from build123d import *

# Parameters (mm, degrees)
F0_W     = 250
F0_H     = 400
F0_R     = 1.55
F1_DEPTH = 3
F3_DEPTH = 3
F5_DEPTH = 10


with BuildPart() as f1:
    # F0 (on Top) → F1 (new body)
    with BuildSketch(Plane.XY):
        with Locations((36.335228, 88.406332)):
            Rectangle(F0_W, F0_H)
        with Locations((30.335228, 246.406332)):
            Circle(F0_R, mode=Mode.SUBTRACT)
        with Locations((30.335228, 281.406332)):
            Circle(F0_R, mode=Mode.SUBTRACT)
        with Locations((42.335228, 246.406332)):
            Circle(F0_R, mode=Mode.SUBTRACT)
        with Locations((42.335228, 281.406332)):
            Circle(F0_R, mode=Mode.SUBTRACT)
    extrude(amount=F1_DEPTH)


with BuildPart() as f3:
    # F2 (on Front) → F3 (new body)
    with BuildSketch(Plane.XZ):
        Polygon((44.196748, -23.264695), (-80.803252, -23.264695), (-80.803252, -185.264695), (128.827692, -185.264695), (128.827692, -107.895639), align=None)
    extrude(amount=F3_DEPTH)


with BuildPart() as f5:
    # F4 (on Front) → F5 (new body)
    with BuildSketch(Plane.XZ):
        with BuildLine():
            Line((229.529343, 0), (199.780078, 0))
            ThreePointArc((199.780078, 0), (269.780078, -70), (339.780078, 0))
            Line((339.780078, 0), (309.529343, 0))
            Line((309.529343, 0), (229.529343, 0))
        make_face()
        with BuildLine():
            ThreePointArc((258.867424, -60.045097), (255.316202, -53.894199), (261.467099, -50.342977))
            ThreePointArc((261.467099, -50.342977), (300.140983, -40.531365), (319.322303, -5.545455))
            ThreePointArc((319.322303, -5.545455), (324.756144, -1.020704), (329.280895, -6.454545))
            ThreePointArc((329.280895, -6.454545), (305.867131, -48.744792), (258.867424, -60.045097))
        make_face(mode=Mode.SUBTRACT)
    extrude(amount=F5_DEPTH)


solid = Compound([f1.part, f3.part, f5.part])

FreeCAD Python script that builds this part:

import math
import FreeCAD as App
import Part
import Sketcher

V = App.Vector
Q = App.Units.Quantity

doc = App.newDocument("Part")
params = doc.addObject("Spreadsheet::Sheet", "Params")
for row, (alias, value) in enumerate([
    ("sketch1_diameter", "3.1 mm"),
    ("sketch1_width", "250 mm"),
    ("sketch1_height", "400 mm"),
    ("pad1_length", "3 mm"),
    ("sketch2_width", "125 mm"),
    ("sketch2_height", "162 mm"),
    ("pad2_length", "3 mm"),
    ("sketch3_radius", "70 mm"),
    ("sketch3_radius2", "60 mm"),
    ("sketch3_radius3", "50 mm"),
    ("sketch3_radius4", "5 mm"),
    ("pad3_length", "10 mm"),
], start=1):
    params.set(f"A{row}", alias)
    params.set(f"B{row}", "=" + value)
    params.setAlias(f"B{row}", alias)

body = doc.addObject("PartDesign::Body", "Body")

sketch1 = doc.addObject("Sketcher::SketchObject", "Sketch")
body.addObject(sketch1)
sketch1.AttachmentSupport = (doc.XY_Plane, [""])
sketch1.MapMode = "FlatFace"
sketch1.addGeometry([
    Part.LineSegment(V(-88.664772, 288.406332, 0), V(-88.664772, -111.593668, 0)),
    Part.LineSegment(V(-88.664772, -111.593668, 0), V(161.335228, -111.593668, 0)),
    Part.LineSegment(V(161.335228, -111.593668, 0), V(161.335228, 288.406332, 0)),
    Part.LineSegment(V(161.335228, 288.406332, 0), V(-88.664772, 288.406332, 0)),
    Part.Circle(V(30.335228, 246.406332, 0), V(0, 0, 1), 1.55),
    Part.Circle(V(42.335228, 246.406332, 0), V(0, 0, 1), 1.55),
    Part.Circle(V(30.335228, 281.406332, 0), V(0, 0, 1), 1.55),
    Part.Circle(V(42.335228, 281.406332, 0), V(0, 0, 1), 1.55),
], False)
sketch1.addConstraint([
    Sketcher.Constraint("Coincident", 0, 2, 1, 1),
    Sketcher.Constraint("Coincident", 1, 2, 2, 1),
    Sketcher.Constraint("Coincident", 2, 2, 3, 1),
    Sketcher.Constraint("Coincident", 3, 2, 0, 1),
    Sketcher.Constraint("Vertical", 0),
    Sketcher.Constraint("Horizontal", 1),
    Sketcher.Constraint("Vertical", 2),
    Sketcher.Constraint("Horizontal", 3),
    Sketcher.Constraint("Equal", 4, 5),
    Sketcher.Constraint("Equal", 5, 6),
    Sketcher.Constraint("Equal", 6, 7),
    Sketcher.Constraint("Horizontal", 4, 3, 5, 3),
    Sketcher.Constraint("Horizontal", 6, 3, 7, 3),
    Sketcher.Constraint("Vertical", 4, 3, 6, 3),
    Sketcher.Constraint("Vertical", 5, 3, 7, 3),
    Sketcher.Constraint("Diameter", 4, 3.1),
    Sketcher.Constraint("DistanceX", 1, 1, 1, 2, 250.0),
    Sketcher.Constraint("DistanceY", 0, 2, 0, 1, 400.0),
    Sketcher.Constraint("DistanceX", 4, 3, 5, 3, 12.0),
    Sketcher.Constraint("DistanceY", 4, 3, 6, 3, 35.0),
    Sketcher.Constraint("DistanceX", 0, 2, 4, 3, 119.0),
    Sketcher.Constraint("DistanceY", 0, 2, 4, 3, 358.0),
    Sketcher.Constraint("DistanceX", -1, 1, 4, 3, 30.335228),
    Sketcher.Constraint("DistanceY", -1, 1, 4, 3, 246.406332),
])
sketch1.setExpression("Constraints[15]", "Params.sketch1_diameter")
sketch1.setExpression("Constraints[16]", "Params.sketch1_width")
sketch1.setExpression("Constraints[17]", "Params.sketch1_height")
pad1 = doc.addObject("PartDesign::Pad", "Pad")
body.addObject(pad1)
pad1.Profile = sketch1
pad1.setExpression("Length", "Params.pad1_length")
body2 = doc.addObject("PartDesign::Body", "Body001")

sketch2 = doc.addObject("Sketcher::SketchObject", "Sketch001")
body2.addObject(sketch2)
sketch2.AttachmentSupport = (doc.getObject("XZ_Plane001"), [""])
sketch2.MapMode = "FlatFace"
sketch2.addGeometry([
    Part.LineSegment(V(44.196748, -23.264695, 0), V(-80.803252, -23.264695, 0)),
    Part.LineSegment(V(-80.803252, -23.264695, 0), V(-80.803252, -185.264695, 0)),
    Part.LineSegment(V(-80.803252, -185.264695, 0), V(128.827692, -185.264695, 0)),
    Part.LineSegment(V(128.827692, -185.264695, 0), V(128.827692, -107.895639, 0)),
    Part.LineSegment(V(128.827692, -107.895639, 0), V(44.196748, -23.264695, 0)),
], False)
sketch2.addConstraint([
    Sketcher.Constraint("Coincident", 0, 2, 1, 1),
    Sketcher.Constraint("Coincident", 1, 2, 2, 1),
    Sketcher.Constraint("Coincident", 2, 2, 3, 1),
    Sketcher.Constraint("Coincident", 3, 2, 4, 1),
    Sketcher.Constraint("Coincident", 4, 2, 0, 1),
    Sketcher.Constraint("Horizontal", 0),
    Sketcher.Constraint("Vertical", 1),
    Sketcher.Constraint("Horizontal", 2),
    Sketcher.Constraint("Vertical", 3),
    Sketcher.Constraint("DistanceX", 0, 2, 0, 1, 125.0),
    Sketcher.Constraint("DistanceY", 1, 2, 1, 1, 162.0),
    Sketcher.Constraint("Angle", 4, Q("135 deg")),
    Sketcher.Constraint("Distance", 4, 119.686229),
    Sketcher.Constraint("DistanceX", 0, 2, -1, 1, 80.803252),
    Sketcher.Constraint("DistanceY", 3, 2, -1, 1, 107.895639),
])
sketch2.setExpression("Constraints[9]", "Params.sketch2_width")
sketch2.setExpression("Constraints[10]", "Params.sketch2_height")
pad2 = doc.addObject("PartDesign::Pad", "Pad001")
body2.addObject(pad2)
pad2.Profile = sketch2
pad2.setExpression("Length", "Params.pad2_length")
body3 = doc.addObject("PartDesign::Body", "Body002")

sketch3 = doc.addObject("Sketcher::SketchObject", "Sketch002")
body3.addObject(sketch3)
sketch3.AttachmentSupport = (doc.getObject("XZ_Plane002"), [""])
sketch3.MapMode = "FlatFace"
sketch3.addGeometry([
    Part.ArcOfCircle(Part.Circle(V(269.780078, 0, 0), V(0, 0, 1), 70), math.radians(180), math.radians(360)),
    Part.LineSegment(V(339.780078, 0, 0), V(199.780078, 0, 0)),
    Part.ArcOfCircle(Part.Circle(V(269.529343, -1, 0), V(0, 0, 1), 60), math.radians(-100.235741), math.radians(-5.215908)),
    Part.ArcOfCircle(Part.Circle(V(260.167262, -55.194037, 0), V(0, 0, 1), 5.022187), math.radians(75.000005), math.radians(254.999997)),
    Part.ArcOfCircle(Part.Circle(V(269.52959, -0.997296, 0), V(0, 0, 1), 50), math.radians(-99.279447), math.radians(-5.219021)),
    Part.ArcOfCircle(Part.Circle(V(324.301599, -6, 0), V(0, 0, 1), 5), math.radians(-5.215903), math.radians(174.784097)),
], False)
sketch3.addConstraint([
    Sketcher.Constraint("Coincident", 0, 1, 1, 2),
    Sketcher.Constraint("Coincident", 1, 1, 0, 2),
    Sketcher.Constraint("Coincident", 2, 1, 3, 2),
    Sketcher.Constraint("Coincident", 3, 1, 4, 1),
    Sketcher.Constraint("Coincident", 4, 2, 5, 2),
    Sketcher.Constraint("Tangent", 5, 1, 2, 2),
    Sketcher.Constraint("Horizontal", 1),
    Sketcher.Constraint("PointOnObject", 0, 3, -1),
    Sketcher.Constraint("PointOnObject", 0, 1, -1),
    Sketcher.Constraint("Radius", 0, 70.0),
    Sketcher.Constraint("Radius", 2, 60.0),
    Sketcher.Constraint("Radius", 4, 50.0),
    Sketcher.Constraint("Radius", 5, 5.0),
    Sketcher.Constraint("DistanceY", 2, 3, -1, 1, 1.0),
    Sketcher.Constraint("DistanceY", 5, 3, -1, 1, 6.0),
    Sketcher.Constraint("Radius", 3, 5.022187),
    Sketcher.Constraint("DistanceX", -1, 1, 5, 3, 324.301599),
    Sketcher.Constraint("DistanceX", -1, 1, 3, 1, 261.467099),
    Sketcher.Constraint("DistanceY", 2, 1, 4, 3, 59.047801),
    Sketcher.Constraint("DistanceX", -1, 1, 0, 3, 269.780078),
    Sketcher.Constraint("DistanceX", -1, 1, 3, 3, 260.167262),
    Sketcher.Constraint("DistanceY", 4, 2, 4, 3, 4.548159),
])
sketch3.setExpression("Constraints[9]", "Params.sketch3_radius")
sketch3.setExpression("Constraints[10]", "Params.sketch3_radius2")
sketch3.setExpression("Constraints[11]", "Params.sketch3_radius3")
sketch3.setExpression("Constraints[12]", "Params.sketch3_radius4")
pad3 = doc.addObject("PartDesign::Pad", "Pad002")
body3.addObject(pad3)
pad3.Profile = sketch3
pad3.setExpression("Length", "Params.pad3_length")

doc.recompute()
